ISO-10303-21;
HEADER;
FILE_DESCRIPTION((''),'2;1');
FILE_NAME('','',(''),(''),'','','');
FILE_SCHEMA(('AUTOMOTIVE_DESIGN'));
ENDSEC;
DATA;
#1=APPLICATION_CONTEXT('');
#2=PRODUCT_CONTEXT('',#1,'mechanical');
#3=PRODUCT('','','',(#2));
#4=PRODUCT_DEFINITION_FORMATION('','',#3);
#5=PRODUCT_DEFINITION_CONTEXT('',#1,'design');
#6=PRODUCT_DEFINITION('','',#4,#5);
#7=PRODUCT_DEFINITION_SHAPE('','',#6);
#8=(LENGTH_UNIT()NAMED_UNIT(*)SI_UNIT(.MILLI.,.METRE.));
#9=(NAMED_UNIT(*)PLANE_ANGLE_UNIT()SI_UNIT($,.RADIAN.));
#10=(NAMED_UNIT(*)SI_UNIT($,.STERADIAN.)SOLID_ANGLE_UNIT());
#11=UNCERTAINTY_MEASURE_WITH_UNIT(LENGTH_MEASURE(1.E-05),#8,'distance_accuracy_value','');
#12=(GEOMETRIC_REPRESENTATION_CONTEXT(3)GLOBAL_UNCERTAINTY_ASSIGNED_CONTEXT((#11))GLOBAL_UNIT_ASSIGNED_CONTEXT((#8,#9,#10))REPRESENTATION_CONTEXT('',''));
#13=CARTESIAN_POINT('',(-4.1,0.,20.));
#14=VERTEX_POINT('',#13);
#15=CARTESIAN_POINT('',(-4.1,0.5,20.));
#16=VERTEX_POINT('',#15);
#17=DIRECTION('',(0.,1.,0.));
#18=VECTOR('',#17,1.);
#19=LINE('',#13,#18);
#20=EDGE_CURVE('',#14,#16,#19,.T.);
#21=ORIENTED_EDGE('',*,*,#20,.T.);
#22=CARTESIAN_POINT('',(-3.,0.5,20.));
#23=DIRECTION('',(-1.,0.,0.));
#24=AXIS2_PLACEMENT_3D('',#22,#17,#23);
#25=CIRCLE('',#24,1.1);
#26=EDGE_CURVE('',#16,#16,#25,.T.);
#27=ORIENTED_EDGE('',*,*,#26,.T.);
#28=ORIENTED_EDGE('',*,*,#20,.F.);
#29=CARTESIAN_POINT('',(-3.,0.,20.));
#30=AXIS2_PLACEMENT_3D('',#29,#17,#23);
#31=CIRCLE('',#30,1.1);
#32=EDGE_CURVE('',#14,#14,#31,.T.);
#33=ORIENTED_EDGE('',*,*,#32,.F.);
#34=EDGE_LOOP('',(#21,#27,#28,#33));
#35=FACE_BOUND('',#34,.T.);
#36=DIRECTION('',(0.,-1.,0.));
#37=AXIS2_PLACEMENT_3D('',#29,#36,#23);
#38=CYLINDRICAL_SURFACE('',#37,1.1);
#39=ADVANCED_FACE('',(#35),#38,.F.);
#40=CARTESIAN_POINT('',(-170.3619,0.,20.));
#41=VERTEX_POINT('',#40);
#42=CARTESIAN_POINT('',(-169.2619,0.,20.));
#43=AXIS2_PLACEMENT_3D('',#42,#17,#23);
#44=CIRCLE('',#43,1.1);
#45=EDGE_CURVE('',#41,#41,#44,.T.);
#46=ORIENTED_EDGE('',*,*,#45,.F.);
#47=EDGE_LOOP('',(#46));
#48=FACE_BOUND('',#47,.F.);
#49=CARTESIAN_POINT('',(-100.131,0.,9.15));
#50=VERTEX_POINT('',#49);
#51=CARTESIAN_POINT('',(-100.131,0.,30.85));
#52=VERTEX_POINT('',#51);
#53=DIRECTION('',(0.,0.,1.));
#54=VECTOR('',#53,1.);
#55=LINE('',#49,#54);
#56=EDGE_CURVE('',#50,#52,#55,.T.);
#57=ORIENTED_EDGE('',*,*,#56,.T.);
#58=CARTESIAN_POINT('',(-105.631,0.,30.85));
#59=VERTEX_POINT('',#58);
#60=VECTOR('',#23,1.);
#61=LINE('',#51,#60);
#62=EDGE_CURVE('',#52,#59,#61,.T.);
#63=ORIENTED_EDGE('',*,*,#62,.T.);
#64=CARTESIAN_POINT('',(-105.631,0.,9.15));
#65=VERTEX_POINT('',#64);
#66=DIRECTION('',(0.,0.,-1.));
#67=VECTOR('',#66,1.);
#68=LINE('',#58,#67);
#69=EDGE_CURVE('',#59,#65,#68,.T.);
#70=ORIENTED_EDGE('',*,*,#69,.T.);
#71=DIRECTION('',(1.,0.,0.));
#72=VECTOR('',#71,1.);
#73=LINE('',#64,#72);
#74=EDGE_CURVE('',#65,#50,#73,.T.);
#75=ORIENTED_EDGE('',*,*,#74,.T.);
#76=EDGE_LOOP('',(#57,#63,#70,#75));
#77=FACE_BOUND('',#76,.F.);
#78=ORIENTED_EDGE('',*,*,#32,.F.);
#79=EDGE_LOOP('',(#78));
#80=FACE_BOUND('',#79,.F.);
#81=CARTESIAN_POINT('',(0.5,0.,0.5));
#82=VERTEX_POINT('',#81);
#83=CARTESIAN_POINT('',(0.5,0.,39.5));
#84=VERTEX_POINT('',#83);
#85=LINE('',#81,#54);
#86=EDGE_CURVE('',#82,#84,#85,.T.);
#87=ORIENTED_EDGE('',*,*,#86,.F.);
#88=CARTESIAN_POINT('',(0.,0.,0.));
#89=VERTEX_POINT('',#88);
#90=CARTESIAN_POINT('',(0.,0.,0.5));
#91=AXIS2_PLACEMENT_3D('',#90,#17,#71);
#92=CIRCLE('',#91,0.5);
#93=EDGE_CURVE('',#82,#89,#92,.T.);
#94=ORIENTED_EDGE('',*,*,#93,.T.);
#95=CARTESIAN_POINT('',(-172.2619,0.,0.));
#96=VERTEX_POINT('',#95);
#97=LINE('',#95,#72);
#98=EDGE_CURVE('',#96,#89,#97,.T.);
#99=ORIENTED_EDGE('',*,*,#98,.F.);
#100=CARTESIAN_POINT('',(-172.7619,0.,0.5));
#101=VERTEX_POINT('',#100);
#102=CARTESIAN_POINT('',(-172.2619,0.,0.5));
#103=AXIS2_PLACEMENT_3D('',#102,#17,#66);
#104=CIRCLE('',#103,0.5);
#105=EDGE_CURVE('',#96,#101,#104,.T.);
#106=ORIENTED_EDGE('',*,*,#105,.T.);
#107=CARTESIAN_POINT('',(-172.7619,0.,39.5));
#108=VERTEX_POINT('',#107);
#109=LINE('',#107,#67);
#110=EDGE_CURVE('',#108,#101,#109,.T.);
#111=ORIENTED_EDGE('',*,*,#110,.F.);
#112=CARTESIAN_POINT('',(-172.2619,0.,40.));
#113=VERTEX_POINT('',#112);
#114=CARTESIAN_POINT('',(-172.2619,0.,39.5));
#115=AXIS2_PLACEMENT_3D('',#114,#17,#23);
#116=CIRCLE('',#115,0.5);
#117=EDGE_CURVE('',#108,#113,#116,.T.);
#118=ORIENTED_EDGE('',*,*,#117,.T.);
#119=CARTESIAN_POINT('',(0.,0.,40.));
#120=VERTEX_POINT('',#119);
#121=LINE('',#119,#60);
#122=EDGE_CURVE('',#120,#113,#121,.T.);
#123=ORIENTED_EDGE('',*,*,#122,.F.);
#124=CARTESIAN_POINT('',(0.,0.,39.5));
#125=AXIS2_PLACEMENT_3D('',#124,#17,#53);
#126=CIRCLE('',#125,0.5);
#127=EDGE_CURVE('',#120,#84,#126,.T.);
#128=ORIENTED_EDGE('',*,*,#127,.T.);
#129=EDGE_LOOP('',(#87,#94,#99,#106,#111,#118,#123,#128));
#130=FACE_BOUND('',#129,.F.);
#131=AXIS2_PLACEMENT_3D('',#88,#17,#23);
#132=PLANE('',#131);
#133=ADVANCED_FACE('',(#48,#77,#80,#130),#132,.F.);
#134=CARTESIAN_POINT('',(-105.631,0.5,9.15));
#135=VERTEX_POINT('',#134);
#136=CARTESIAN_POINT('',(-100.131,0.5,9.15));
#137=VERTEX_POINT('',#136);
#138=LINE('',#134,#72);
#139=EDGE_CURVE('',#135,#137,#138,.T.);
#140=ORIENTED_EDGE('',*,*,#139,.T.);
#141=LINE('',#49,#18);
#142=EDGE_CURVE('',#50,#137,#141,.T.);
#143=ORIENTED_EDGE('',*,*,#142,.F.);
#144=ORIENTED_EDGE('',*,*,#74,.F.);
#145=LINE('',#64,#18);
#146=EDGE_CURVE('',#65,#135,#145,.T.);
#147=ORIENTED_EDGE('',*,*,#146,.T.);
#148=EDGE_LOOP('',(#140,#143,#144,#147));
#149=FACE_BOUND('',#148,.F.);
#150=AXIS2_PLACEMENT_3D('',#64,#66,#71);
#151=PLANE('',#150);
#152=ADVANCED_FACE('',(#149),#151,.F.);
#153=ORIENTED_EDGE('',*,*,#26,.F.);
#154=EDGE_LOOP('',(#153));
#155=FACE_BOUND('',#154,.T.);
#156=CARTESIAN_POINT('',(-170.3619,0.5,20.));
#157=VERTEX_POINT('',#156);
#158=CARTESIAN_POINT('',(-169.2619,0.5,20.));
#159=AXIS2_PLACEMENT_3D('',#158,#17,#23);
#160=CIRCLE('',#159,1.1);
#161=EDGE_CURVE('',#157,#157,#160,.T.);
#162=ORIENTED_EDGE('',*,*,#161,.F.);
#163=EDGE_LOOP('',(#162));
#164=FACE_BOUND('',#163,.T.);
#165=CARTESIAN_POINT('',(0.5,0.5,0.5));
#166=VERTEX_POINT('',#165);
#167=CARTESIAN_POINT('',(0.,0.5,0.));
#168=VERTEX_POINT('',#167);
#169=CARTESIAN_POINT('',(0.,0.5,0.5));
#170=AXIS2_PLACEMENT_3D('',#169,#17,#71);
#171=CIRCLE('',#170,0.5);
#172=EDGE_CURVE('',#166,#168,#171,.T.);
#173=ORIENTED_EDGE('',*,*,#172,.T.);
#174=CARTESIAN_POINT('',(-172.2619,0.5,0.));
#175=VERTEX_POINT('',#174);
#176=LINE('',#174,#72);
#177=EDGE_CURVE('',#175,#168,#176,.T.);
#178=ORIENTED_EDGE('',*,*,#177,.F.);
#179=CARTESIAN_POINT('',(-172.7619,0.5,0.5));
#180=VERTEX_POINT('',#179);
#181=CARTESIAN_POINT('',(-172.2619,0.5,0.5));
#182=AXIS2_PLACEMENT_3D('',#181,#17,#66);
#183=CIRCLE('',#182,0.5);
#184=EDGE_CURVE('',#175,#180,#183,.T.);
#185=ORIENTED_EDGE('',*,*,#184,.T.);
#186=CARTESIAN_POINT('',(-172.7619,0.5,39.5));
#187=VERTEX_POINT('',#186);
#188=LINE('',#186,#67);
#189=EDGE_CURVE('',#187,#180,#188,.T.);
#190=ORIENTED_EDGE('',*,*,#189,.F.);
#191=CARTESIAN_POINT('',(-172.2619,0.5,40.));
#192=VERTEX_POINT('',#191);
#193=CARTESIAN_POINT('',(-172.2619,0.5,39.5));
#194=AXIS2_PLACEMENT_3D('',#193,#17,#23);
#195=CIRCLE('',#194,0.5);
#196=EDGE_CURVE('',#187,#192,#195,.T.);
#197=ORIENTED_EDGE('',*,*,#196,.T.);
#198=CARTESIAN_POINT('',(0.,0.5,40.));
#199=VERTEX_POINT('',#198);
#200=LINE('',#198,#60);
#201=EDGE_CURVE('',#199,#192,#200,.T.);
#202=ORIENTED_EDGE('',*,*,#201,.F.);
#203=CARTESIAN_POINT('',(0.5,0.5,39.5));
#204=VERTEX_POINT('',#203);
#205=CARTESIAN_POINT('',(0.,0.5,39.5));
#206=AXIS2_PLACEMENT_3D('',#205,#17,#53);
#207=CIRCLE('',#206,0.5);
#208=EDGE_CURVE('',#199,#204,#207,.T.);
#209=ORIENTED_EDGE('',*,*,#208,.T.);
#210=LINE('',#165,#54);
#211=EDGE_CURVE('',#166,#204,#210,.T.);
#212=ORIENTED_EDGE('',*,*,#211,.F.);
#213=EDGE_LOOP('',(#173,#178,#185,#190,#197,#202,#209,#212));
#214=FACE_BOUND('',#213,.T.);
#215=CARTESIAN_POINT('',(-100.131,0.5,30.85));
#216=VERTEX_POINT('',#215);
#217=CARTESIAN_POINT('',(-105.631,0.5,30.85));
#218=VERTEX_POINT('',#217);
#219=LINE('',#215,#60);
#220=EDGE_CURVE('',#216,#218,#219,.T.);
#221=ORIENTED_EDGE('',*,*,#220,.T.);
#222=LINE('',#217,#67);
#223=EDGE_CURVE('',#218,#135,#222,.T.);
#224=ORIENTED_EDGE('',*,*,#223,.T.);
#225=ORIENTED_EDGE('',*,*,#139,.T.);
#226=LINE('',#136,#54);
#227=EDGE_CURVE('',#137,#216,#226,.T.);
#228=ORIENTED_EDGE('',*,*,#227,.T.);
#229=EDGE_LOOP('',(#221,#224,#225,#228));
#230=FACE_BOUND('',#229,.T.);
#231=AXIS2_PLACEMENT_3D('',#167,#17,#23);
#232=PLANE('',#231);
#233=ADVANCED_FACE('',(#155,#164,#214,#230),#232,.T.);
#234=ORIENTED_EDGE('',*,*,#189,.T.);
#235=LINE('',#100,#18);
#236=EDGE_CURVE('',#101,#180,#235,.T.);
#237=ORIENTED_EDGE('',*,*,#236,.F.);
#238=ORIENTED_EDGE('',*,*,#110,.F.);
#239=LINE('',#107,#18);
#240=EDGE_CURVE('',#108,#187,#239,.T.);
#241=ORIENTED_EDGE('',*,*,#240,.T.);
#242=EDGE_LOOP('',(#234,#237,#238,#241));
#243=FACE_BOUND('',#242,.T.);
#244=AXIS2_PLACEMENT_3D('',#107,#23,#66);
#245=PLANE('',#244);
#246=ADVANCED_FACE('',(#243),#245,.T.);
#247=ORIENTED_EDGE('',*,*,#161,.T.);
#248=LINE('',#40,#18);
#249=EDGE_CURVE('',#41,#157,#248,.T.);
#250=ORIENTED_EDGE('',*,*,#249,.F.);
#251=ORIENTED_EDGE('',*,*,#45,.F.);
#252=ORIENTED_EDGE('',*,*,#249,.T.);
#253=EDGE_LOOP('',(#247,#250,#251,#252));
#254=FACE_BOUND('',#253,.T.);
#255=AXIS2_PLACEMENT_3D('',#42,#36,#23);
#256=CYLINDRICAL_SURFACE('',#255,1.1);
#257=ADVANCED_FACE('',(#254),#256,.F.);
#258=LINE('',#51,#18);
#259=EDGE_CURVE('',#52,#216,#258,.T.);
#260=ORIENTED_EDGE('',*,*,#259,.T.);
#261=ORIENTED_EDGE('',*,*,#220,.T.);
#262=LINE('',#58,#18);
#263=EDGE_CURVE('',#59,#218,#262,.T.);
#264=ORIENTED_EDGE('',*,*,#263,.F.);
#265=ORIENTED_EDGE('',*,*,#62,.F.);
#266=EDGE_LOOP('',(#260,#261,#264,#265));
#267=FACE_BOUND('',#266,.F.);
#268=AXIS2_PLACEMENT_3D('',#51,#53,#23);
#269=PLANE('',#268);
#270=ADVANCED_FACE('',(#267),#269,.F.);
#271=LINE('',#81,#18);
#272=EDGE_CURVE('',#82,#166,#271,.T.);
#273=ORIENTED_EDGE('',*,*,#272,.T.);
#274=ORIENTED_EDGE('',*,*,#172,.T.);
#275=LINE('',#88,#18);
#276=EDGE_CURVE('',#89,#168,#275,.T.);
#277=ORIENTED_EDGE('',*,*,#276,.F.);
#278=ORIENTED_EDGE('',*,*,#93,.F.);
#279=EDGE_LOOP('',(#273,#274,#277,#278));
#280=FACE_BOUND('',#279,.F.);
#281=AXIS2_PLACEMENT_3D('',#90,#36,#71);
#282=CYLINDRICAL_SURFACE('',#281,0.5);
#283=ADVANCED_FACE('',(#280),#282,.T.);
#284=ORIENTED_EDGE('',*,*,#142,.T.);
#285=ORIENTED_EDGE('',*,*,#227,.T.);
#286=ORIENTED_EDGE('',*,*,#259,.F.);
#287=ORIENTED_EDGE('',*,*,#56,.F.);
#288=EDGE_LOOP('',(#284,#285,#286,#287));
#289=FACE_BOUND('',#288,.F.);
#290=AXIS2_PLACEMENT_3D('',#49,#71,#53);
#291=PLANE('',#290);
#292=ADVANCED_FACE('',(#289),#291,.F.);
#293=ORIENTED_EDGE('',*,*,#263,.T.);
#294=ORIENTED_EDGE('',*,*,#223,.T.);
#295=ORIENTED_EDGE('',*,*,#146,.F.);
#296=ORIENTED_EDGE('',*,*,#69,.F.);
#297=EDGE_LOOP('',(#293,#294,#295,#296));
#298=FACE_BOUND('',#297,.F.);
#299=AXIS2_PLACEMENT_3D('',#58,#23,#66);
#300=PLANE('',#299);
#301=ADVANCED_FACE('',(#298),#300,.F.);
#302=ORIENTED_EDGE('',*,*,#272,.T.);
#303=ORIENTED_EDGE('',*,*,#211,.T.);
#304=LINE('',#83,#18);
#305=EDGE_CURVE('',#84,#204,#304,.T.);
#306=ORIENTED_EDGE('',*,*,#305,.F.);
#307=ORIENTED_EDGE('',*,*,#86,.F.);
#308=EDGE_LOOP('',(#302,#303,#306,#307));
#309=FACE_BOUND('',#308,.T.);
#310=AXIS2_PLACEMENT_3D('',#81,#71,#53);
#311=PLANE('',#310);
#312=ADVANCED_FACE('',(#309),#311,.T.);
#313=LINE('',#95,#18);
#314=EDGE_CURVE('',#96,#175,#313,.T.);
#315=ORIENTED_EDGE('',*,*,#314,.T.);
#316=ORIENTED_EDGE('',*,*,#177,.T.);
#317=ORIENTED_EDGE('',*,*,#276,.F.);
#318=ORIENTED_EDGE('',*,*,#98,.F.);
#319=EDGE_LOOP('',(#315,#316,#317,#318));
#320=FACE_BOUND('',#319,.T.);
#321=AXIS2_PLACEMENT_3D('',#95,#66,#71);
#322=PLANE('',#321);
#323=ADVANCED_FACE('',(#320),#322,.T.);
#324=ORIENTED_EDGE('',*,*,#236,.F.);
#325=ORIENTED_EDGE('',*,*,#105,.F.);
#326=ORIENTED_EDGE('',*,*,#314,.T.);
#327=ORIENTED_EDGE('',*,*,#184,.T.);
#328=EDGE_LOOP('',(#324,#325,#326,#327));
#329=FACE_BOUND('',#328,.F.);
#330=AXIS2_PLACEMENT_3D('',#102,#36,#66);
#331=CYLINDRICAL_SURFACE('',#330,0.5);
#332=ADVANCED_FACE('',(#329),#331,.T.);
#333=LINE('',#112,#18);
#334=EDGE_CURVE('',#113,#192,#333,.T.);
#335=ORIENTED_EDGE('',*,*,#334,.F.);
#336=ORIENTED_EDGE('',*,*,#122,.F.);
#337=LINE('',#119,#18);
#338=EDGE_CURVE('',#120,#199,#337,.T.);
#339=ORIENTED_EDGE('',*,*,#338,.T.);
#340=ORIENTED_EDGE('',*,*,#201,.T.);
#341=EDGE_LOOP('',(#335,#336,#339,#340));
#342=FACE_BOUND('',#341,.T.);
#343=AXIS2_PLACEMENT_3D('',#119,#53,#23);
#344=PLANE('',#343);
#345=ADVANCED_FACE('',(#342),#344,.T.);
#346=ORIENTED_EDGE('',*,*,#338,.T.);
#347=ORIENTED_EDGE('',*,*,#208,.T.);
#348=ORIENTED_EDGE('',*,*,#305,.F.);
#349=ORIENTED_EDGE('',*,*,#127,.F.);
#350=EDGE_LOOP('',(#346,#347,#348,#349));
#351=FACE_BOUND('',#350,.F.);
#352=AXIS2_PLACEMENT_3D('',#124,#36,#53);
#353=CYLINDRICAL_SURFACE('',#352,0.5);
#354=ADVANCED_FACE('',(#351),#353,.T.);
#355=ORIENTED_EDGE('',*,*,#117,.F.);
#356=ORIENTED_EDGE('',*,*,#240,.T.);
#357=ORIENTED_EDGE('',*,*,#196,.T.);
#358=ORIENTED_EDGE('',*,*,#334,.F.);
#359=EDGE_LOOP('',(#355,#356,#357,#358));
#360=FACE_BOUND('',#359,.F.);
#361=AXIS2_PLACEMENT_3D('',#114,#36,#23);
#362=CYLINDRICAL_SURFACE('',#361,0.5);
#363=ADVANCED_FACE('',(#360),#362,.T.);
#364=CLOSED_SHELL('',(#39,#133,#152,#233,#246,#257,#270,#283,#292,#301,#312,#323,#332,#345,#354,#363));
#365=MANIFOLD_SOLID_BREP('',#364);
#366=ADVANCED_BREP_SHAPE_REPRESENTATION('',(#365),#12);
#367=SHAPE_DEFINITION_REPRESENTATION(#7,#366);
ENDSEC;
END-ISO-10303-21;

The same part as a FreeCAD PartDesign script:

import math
import FreeCAD as App
import Part
import Sketcher


def add_polygon(sketch, points):
    """Adds a closed chain of lines whose ends are joined by coincident constraints."""
    first, n = sketch.GeometryCount, len(points)
    for a, b in zip(points, points[1:] + points[:1]):
        sketch.addGeometry(Part.LineSegment(App.Vector(*a, 0), App.Vector(*b, 0)), False)
    for i in range(n):
        sketch.addConstraint(Sketcher.Constraint("Coincident", first + i, 2, first + (i + 1) % n, 1))

doc = App.newDocument("Part")
body = doc.addObject("PartDesign::Body", "Body")

# Sketch on XZ plane
sketch1 = body.newObject("Sketcher::SketchObject", "Sketch")
sketch1.AttachmentSupport = (doc.getObject("XZ_Plane"), [""])
sketch1.MapMode = "FlatFace"
sketch1.addGeometry(Part.LineSegment(App.Vector(-172.3, 40, 0), App.Vector(0, 40, 0)), False)  # 0
sketch1.addGeometry(Part.ArcOfCircle(Part.Circle(App.Vector(0, 39.5, 0), App.Vector(0, 0, 1), 0.5), math.radians(0), math.radians(90)), False)  # 1
sketch1.addGeometry(Part.LineSegment(App.Vector(0.5, 39.5, 0), App.Vector(0.5, 0.5, 0)), False)  # 2
sketch1.addGeometry(Part.ArcOfCircle(Part.Circle(App.Vector(0, 0.5, 0), App.Vector(0, 0, 1), 0.5), math.radians(-90), math.radians(0)), False)  # 3
sketch1.addGeometry(Part.LineSegment(App.Vector(0, 0, 0), App.Vector(-172.3, 0, 0)), False)  # 4
sketch1.addGeometry(Part.ArcOfCircle(Part.Circle(App.Vector(-172.3, 0.5, 0), App.Vector(0, 0, 1), 0.5), math.radians(180), math.radians(270)), False)  # 5
sketch1.addGeometry(Part.LineSegment(App.Vector(-172.8, 0.5, 0), App.Vector(-172.8, 39.5, 0)), False)  # 6
sketch1.addGeometry(Part.ArcOfCircle(Part.Circle(App.Vector(-172.3, 39.5, 0), App.Vector(0, 0, 1), 0.5), math.radians(90), math.radians(180)), False)  # 7
sketch1.addGeometry(Part.Circle(App.Vector(-3, 20, 0), App.Vector(0, 0, 1), 1.1), False)  # 8
add_polygon(sketch1, [(-100.1, 9.2), (-100.1, 30.9), (-105.6, 30.9), (-105.6, 9.2)])  # lines 9-12
sketch1.addGeometry(Part.Circle(App.Vector(-169.3, 20, 0), App.Vector(0, 0, 1), 1.1), False)  # 13
sketch1.addConstraint([
    Sketcher.Constraint("Tangent", 0, 2, 1, 2),
    Sketcher.Constraint("Tangent", 1, 1, 2, 1),
    Sketcher.Constraint("Tangent", 2, 2, 3, 2),
    Sketcher.Constraint("Tangent", 3, 1, 4, 1),
    Sketcher.Constraint("Tangent", 4, 2, 5, 2),
    Sketcher.Constraint("Tangent", 5, 1, 6, 1),
    Sketcher.Constraint("Tangent", 6, 2, 7, 2),
    Sketcher.Constraint("Tangent", 7, 1, 0, 1),
    Sketcher.Constraint("Horizontal", 0),
    Sketcher.Constraint("Vertical", 2),
    Sketcher.Constraint("Horizontal", 4),
    Sketcher.Constraint("Vertical", 6),
    Sketcher.Constraint("Vertical", 9),
    Sketcher.Constraint("Horizontal", 10),
    Sketcher.Constraint("Vertical", 11),
    Sketcher.Constraint("Horizontal", 12),
    Sketcher.Constraint("Coincident", 3, 1, -1, 1),
    Sketcher.Constraint("Equal", 1, 3),
    Sketcher.Constraint("Equal", 3, 5),
    Sketcher.Constraint("Equal", 5, 7),
    Sketcher.Constraint("Equal", 8, 13),
    Sketcher.Constraint("Horizontal", 8, 3, 13, 3),
    Sketcher.Constraint("Diameter", 8, 2.2),
    Sketcher.Constraint("Radius", 1, 0.5),
    Sketcher.Constraint("DistanceY", 2, 2, 2, 1, 39.0),
    Sketcher.Constraint("DistanceX", 10, 2, 10, 1, 5.5),
    Sketcher.Constraint("DistanceY", 9, 1, 9, 2, 21.7),
    Sketcher.Constraint("DistanceX", 8, 3, -1, 1, 3.0),
    Sketcher.Constraint("DistanceY", -1, 1, 8, 3, 20.0),
    Sketcher.Constraint("DistanceX", 5, 3, 13, 3, 3.0),
    Sketcher.Constraint("DistanceX", 0, 1, 0, 2, 172.262),
    Sketcher.Constraint("DistanceY", -1, 1, 9, 2, 30.85),
    Sketcher.Constraint("DistanceX", 9, 2, -1, 1, 100.131),
])
pad1 = body.newObject("PartDesign::Pad", "Pad")
pad1.Profile = sketch1
pad1.Length = 0.5
pad1.Reversed = True

doc.recompute()
